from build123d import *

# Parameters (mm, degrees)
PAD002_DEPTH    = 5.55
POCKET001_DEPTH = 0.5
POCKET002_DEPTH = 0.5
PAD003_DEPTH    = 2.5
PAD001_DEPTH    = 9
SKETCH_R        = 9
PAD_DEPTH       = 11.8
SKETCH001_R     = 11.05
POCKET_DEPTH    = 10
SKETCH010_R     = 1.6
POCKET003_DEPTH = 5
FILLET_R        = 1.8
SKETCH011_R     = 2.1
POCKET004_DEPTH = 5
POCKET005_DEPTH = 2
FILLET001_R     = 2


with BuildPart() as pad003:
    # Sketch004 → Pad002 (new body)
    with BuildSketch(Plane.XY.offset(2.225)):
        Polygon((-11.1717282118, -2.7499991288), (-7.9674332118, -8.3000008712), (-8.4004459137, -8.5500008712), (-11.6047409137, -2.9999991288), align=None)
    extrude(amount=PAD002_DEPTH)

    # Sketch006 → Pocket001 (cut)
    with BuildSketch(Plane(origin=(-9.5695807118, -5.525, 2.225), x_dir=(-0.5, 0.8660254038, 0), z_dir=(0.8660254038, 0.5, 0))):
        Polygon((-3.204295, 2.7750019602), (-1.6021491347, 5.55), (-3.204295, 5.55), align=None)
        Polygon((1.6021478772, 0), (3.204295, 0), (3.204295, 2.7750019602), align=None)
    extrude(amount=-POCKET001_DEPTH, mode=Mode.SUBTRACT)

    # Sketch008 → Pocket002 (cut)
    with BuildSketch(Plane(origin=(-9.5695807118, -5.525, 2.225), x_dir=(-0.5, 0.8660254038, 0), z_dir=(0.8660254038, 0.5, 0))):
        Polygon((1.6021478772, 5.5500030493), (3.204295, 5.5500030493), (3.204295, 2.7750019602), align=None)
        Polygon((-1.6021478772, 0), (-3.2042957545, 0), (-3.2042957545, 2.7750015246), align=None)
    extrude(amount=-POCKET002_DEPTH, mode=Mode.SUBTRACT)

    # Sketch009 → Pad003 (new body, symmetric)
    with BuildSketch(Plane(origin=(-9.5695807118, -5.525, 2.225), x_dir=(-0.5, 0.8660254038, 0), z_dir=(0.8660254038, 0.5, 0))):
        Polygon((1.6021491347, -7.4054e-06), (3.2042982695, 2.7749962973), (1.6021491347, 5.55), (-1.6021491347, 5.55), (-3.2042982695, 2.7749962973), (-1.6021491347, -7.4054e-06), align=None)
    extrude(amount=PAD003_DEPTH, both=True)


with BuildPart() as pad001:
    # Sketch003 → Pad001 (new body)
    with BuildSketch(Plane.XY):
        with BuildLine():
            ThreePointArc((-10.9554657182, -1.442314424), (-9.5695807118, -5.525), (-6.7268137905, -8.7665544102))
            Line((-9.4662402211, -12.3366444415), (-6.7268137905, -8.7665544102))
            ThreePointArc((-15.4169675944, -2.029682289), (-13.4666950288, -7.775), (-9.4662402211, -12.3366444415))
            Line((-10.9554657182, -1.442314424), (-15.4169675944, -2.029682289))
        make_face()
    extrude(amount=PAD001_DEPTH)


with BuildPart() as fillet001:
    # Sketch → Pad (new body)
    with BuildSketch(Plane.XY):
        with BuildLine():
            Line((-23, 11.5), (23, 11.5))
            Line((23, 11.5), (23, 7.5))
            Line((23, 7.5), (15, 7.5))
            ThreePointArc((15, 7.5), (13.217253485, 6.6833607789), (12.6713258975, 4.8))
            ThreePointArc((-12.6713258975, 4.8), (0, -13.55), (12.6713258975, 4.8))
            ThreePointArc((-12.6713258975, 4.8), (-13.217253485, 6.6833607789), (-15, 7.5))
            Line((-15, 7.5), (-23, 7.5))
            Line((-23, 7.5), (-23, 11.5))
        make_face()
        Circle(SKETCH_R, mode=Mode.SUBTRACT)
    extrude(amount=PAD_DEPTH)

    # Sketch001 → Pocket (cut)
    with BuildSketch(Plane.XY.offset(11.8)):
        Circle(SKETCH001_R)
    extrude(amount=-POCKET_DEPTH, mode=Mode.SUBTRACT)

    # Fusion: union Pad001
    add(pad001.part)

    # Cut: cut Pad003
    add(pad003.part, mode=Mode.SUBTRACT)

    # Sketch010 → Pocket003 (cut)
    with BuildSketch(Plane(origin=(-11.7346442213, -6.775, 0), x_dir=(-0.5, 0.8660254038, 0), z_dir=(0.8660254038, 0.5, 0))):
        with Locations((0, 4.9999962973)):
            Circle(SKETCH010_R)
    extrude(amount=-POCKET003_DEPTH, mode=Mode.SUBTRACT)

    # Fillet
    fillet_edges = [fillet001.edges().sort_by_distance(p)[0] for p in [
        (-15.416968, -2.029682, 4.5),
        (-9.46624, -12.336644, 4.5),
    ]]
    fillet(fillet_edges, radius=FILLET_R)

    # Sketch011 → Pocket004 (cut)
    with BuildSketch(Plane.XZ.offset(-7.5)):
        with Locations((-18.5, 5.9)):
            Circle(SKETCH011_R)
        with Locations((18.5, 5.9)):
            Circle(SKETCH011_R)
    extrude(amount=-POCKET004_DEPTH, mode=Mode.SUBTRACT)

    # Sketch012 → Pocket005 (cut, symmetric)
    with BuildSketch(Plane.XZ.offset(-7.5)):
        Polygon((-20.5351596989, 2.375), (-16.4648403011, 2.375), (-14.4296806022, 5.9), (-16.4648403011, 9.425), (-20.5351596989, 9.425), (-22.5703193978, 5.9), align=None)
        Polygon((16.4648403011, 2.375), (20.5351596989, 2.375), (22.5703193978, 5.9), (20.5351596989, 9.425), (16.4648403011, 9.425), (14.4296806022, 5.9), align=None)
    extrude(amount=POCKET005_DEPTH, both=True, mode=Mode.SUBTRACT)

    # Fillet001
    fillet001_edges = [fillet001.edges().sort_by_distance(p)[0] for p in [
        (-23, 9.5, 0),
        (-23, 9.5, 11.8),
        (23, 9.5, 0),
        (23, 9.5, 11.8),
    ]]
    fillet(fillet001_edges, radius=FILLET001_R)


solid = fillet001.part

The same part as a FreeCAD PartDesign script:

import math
import FreeCAD as App
import Part
import Sketcher

V = App.Vector
Q = App.Units.Quantity


def edges_at(feature, points):
    """Names of the edges that pass closest to the given points."""
    edges = feature.Shape.Edges
    near = lambda p: min(range(len(edges)), key=lambda i: edges[i].distToShape(Part.Vertex(*p))[0])
    return sorted({f"Edge{near(p) + 1}" for p in points})

doc = App.newDocument("Part")
body = doc.addObject("PartDesign::Body", "Body")

sketch1 = body.newObject("Sketcher::SketchObject", "Sketch")
sketch1.AttachmentSupport = (doc.getObject("XY_Plane"), [""])
sketch1.MapMode = "FlatFace"
sketch1.AttachmentOffset = App.Placement(V(0, 0, 2.225), App.Rotation())
sketch1.addGeometry([
    Part.LineSegment(V(-8, -8.3, 0), V(-11.2, -2.7, 0)),
    Part.LineSegment(V(-11.2, -2.7, 0), V(-11.6, -3, 0)),
    Part.LineSegment(V(-11.6, -3, 0), V(-8.4, -8.6, 0)),
    Part.LineSegment(V(-8.4, -8.6, 0), V(-8, -8.3, 0)),
], False)
sketch1.addConstraint([
    Sketcher.Constraint("Coincident", 0, 2, 1, 1),
    Sketcher.Constraint("Coincident", 1, 2, 2, 1),
    Sketcher.Constraint("Coincident", 2, 2, 3, 1),
    Sketcher.Constraint("Coincident", 3, 2, 0, 1),
    Sketcher.Constraint("Perpendicular", 0, 1),
    Sketcher.Constraint("Perpendicular", 1, 2),
    Sketcher.Constraint("Perpendicular", 2, 3),
    Sketcher.Constraint("Angle", 0, Q("120 deg")),
    Sketcher.Constraint("DistanceY", 1, 2, -1, 1, 2.999999),
    Sketcher.Constraint("Distance", 1, 0.5),
    Sketcher.Constraint("DistanceY", 3, 2, -1, 1, 8.300001),
    Sketcher.Constraint("DistanceX", 0, 2, -1, 1, 11.171728),
])
pad1 = body.newObject("PartDesign::Pad", "Pad")
pad1.Profile = sketch1
pad1.Length = 5.55

sketch2 = body.newObject("Sketcher::SketchObject", "Sketch001")
sketch2.Placement = App.Placement(V(-9.569581, -5.525, 2.225), App.Rotation(V(-0.5, 0.866025404, 0), V(0, 0, 1), V(0.866025404, 0.5, 0), "ZXY"))
sketch2.addGeometry([
    Part.LineSegment(V(-3.2, 2.8, 0), V(-1.6, 5.6, 0)),
    Part.LineSegment(V(-1.6, 5.6, 0), V(-3.2, 5.6, 0)),
    Part.LineSegment(V(-3.2, 5.6, 0), V(-3.2, 2.8, 0)),
    Part.LineSegment(V(1.6, 0, 0), V(3.2, 0, 0)),
    Part.LineSegment(V(3.2, 0, 0), V(3.2, 2.8, 0)),
    Part.LineSegment(V(3.2, 2.8, 0), V(1.6, 0, 0)),
], False)
sketch2.addConstraint([
    Sketcher.Constraint("Coincident", 0, 2, 1, 1),
    Sketcher.Constraint("Coincident", 1, 2, 2, 1),
    Sketcher.Constraint("Coincident", 2, 2, 0, 1),
    Sketcher.Constraint("Coincident", 3, 2, 4, 1),
    Sketcher.Constraint("Coincident", 4, 2, 5, 1),
    Sketcher.Constraint("Coincident", 5, 2, 3, 1),
    Sketcher.Constraint("Horizontal", 1),
    Sketcher.Constraint("Vertical", 2),
    Sketcher.Constraint("Horizontal", 3),
    Sketcher.Constraint("Vertical", 4),
    Sketcher.Constraint("Symmetric", 2, 2, 4, 2, -2),
    Sketcher.Constraint("PointOnObject", 3, 2, -1),
    Sketcher.Constraint("Parallel", 0, 5),
    Sketcher.Constraint("Equal", 1, 3),
    Sketcher.Constraint("Angle", 0, Q("60 deg")),
    Sketcher.Constraint("DistanceY", 2, 2, 2, 1, 2.774998),
    Sketcher.Constraint("DistanceX", 0, 2, -1, 1, 1.602149),
])
pocket1 = body.newObject("PartDesign::Pocket", "Pocket")
pocket1.Profile = sketch2
pocket1.Length = 0.5

sketch3 = body.newObject("Sketcher::SketchObject", "Sketch002")
sketch3.Placement = App.Placement(V(-9.569581, -5.525, 2.225), App.Rotation(V(-0.5, 0.866025404, 0), V(0, 0, 1), V(0.866025404, 0.5, 0), "ZXY"))
sketch3.addGeometry([
    Part.LineSegment(V(3.2, 5.6, 0), V(1.6, 5.6, 0)),
    Part.LineSegment(V(1.6, 5.6, 0), V(3.2, 2.8, 0)),
    Part.LineSegment(V(3.2, 2.8, 0), V(3.2, 5.6, 0)),
    Part.LineSegment(V(-3.2, 0, 0), V(-1.6, 0, 0)),
    Part.LineSegment(V(-1.6, 0, 0), V(-3.2, 2.8, 0)),
    Part.LineSegment(V(-3.2, 2.8, 0), V(-3.2, 0, 0)),
], False)
sketch3.addConstraint([
    Sketcher.Constraint("Coincident", 0, 2, 1, 1),
    Sketcher.Constraint("Coincident", 1, 2, 2, 1),
    Sketcher.Constraint("Coincident", 2, 2, 0, 1),
    Sketcher.Constraint("Coincident", 3, 2, 4, 1),
    Sketcher.Constraint("Coincident", 4, 2, 5, 1),
    Sketcher.Constraint("Coincident", 5, 2, 3, 1),
    Sketcher.Constraint("Horizontal", 0),
    Sketcher.Constraint("Vertical", 2),
    Sketcher.Constraint("Horizontal", 3),
    Sketcher.Constraint("Vertical", 5),
    Sketcher.Constraint("Symmetric", 1, 2, 4, 2, -2),
    Sketcher.Constraint("PointOnObject", 3, 2, -1),
    Sketcher.Constraint("Parallel", 1, 4),
    Sketcher.Constraint("Equal", 0, 3),
    Sketcher.Constraint("Angle", 1, Q("-60.000008 deg")),
    Sketcher.Constraint("DistanceY", 2, 1, 2, 2, 2.775001),
    Sketcher.Constraint("DistanceX", 4, 2, 1, 2, 6.408591),
])
pocket2 = body.newObject("PartDesign::Pocket", "Pocket001")
pocket2.Profile = sketch3
pocket2.Length = 0.5

sketch4 = body.newObject("Sketcher::SketchObject", "Sketch003")
sketch4.Placement = App.Placement(V(-9.569581, -5.525, 2.225), App.Rotation(V(-0.5, 0.866025404, 0), V(0, 0, 1), V(0.866025404, 0.5, 0), "ZXY"))
sketch4.addGeometry([
    Part.LineSegment(V(1.6, 0, 0), V(3.2, 2.8, 0)),
    Part.LineSegment(V(3.2, 2.8, 0), V(1.6, 5.6, 0)),
    Part.LineSegment(V(1.6, 5.6, 0), V(-1.6, 5.6, 0)),
    Part.LineSegment(V(-1.6, 5.6, 0), V(-3.2, 2.8, 0)),
    Part.LineSegment(V(-3.2, 2.8, 0), V(-1.6, 0, 0)),
    Part.LineSegment(V(-1.6, 0, 0), V(1.6, 0, 0)),
], False)
sketch4.addConstraint([
    Sketcher.Constraint("Coincident", 0, 2, 1, 1),
    Sketcher.Constraint("Coincident", 1, 2, 2, 1),
    Sketcher.Constraint("Coincident", 2, 2, 3, 1),
    Sketcher.Constraint("Coincident", 3, 2, 4, 1),
    Sketcher.Constraint("Coincident", 4, 2, 5, 1),
    Sketcher.Constraint("Coincident", 5, 2, 0, 1),
    Sketcher.Constraint("Horizontal", 2),
    Sketcher.Constraint("Horizontal", 5),
    Sketcher.Constraint("Symmetric", 0, 2, 3, 2, -2),
    Sketcher.Constraint("Parallel", 0, 3),
    Sketcher.Constraint("Parallel", 1, 4),
    Sketcher.Constraint("Vertical", 2, 2, 4, 2),
    Sketcher.Constraint("Vertical", 1, 2, 5, 2),
    Sketcher.Constraint("Angle", 0, Q("60 deg")),
    Sketcher.Constraint("DistanceY", -1, 1, 1, 2, 5.55),
    Sketcher.Constraint("DistanceX", 2, 2, 2, 1, 3.204298),
    Sketcher.Constraint("Distance", 0, 3.204298),
])
pad2 = body.newObject("PartDesign::Pad", "Pad001")
pad2.Profile = sketch4
pad2.Length = 5
pad2.Midplane = True
body2 = doc.addObject("PartDesign::Body", "Body001")

sketch5 = body2.newObject("Sketcher::SketchObject", "Sketch004")
sketch5.AttachmentSupport = (doc.getObject("XY_Plane001"), [""])
sketch5.MapMode = "FlatFace"
sketch5.addGeometry([
    Part.ArcOfCircle(Part.Circle(V(0, 0, 0), V(0, 0, 1), 11.1), math.radians(-173), math.radians(-128)),
    Part.LineSegment(V(-11, -1.4, 0), V(-15.4, -2, 0)),
    Part.ArcOfCircle(Part.Circle(V(0, 0, 0), V(0, 0, 1), 15.6), math.radians(-173), math.radians(-128)),
    Part.LineSegment(V(-9.5, -12.3, 0), V(-6.7, -8.8, 0)),
], False)
sketch5.addConstraint([
    Sketcher.Constraint("Coincident", 0, 1, 1, 1),
    Sketcher.Constraint("Coincident", 1, 2, 2, 1),
    Sketcher.Constraint("Coincident", 2, 2, 3, 1),
    Sketcher.Constraint("Coincident", 3, 2, 0, 2),
    Sketcher.Constraint("Coincident", 0, 3, -1, 1),
    Sketcher.Constraint("Coincident", 2, 3, -1, 1),
    Sketcher.Constraint("Radius", 0, 11.05),
    Sketcher.Constraint("Radius", 2, 15.55),
    Sketcher.Constraint("Angle", 1, Q("-172.5 deg")),
    Sketcher.Constraint("Angle", 3, Q("52.5 deg")),
    Sketcher.Constraint("DistanceX", 2, 2, -1, 1, 9.46624),
    Sketcher.Constraint("DistanceY", 2, 2, 0, 1, 10.89433),
])
pad3 = body2.newObject("PartDesign::Pad", "Pad002")
pad3.Profile = sketch5
pad3.Length = 9
body3 = doc.addObject("PartDesign::Body", "Body002")

sketch6 = body3.newObject("Sketcher::SketchObject", "Sketch005")
sketch6.AttachmentSupport = (doc.getObject("XY_Plane002"), [""])
sketch6.MapMode = "FlatFace"
sketch6.addGeometry([
    Part.LineSegment(V(23, 11.5, 0), V(-23, 11.5, 0)),
    Part.LineSegment(V(-23, 11.5, 0), V(-23, 7.5, 0)),
    Part.LineSegment(V(-23, 7.5, 0), V(-15, 7.5, 0)),
    Part.ArcOfCircle(Part.Circle(V(-15, 5.1, 0), V(0, 0, 1), 2.4), math.radians(-8), math.radians(90)),
    Part.ArcOfCircle(Part.Circle(V(0, 0, 0), V(0, 0, 1), 13.6), math.radians(159), math.radians(381)),
    Part.ArcOfCircle(Part.Circle(V(15, 5.1, 0), V(0, 0, 1), 2.4), math.radians(90), math.radians(188)),
    Part.LineSegment(V(15, 7.5, 0), V(23, 7.5, 0)),
    Part.LineSegment(V(23, 7.5, 0), V(23, 11.5, 0)),
    Part.Circle(V(0, 0, 0), V(0, 0, 1), 9),
], False)
sketch6.addConstraint([
    Sketcher.Constraint("Coincident", 0, 2, 1, 1),
    Sketcher.Constraint("Coincident", 1, 2, 2, 1),
    Sketcher.Constraint("Tangent", 2, 2, 3, 2),
    Sketcher.Constraint("Coincident", 3, 1, 4, 1),
    Sketcher.Constraint("Coincident", 4, 2, 5, 2),
    Sketcher.Constraint("Tangent", 5, 1, 6, 1),
    Sketcher.Constraint("Coincident", 6, 2, 7, 1),
    Sketcher.Constraint("Coincident", 7, 2, 0, 1),
    Sketcher.Constraint("Horizontal", 0),
    Sketcher.Constraint("Vertical", 1),
    Sketcher.Constraint("Horizontal", 2),
    Sketcher.Constraint("Horizontal", 6),
    Sketcher.Constraint("Vertical", 7),
    Sketcher.Constraint("Coincident", 4, 3, -1, 1),
    Sketcher.Constraint("Coincident", 8, 3, -1, 1),
    Sketcher.Constraint("Equal", 3, 5),
    Sketcher.Constraint("Symmetric", 3, 3, 5, 3, -2),
    Sketcher.Constraint("Equal", 2, 6),
    Sketcher.Constraint("Diameter", 8, 18.0),
    Sketcher.Constraint("DistanceX", 0, 2, 0, 1, 46.0),
    Sketcher.Constraint("DistanceX", 2, 1, 2, 2, 8.0),
    Sketcher.Constraint("DistanceY", 1, 2, 1, 1, 4.0),
    Sketcher.Constraint("Radius", 4, 13.55),
    Sketcher.Constraint("DistanceY", -1, 1, 0, 2, 11.5),
    Sketcher.Constraint("DistanceY", -1, 1, 3, 1, 4.8),
])
pad4 = body3.newObject("PartDesign::Pad", "Pad003")
pad4.Profile = sketch6
pad4.Length = 11.8

sketch7 = body3.newObject("Sketcher::SketchObject", "Sketch006")
sketch7.AttachmentSupport = (doc.getObject("XY_Plane002"), [""])
sketch7.MapMode = "FlatFace"
sketch7.AttachmentOffset = App.Placement(V(0, 0, 11.8), App.Rotation())
sketch7.addGeometry(Part.Circle(V(0, 0, 0), V(0, 0, 1), 11), False)
sketch7.addConstraint([
    Sketcher.Constraint("Coincident", 0, 3, -1, 1),
    Sketcher.Constraint("Diameter", 0, 22.1),
])
pocket3 = body3.newObject("PartDesign::Pocket", "Pocket002")
pocket3.Profile = sketch7
pocket3.Length = 10
doc.recompute()

boolean = body3.newObject("PartDesign::Boolean", "Boolean")
boolean.Type = "Fuse"
boolean.addObjects([body2])
doc.recompute()

boolean2 = body3.newObject("PartDesign::Boolean", "Boolean001")
boolean2.Type = "Cut"
boolean2.addObjects([body])

sketch8 = body3.newObject("Sketcher::SketchObject", "Sketch007")
sketch8.Placement = App.Placement(V(-11.734644, -6.775, 0), App.Rotation(V(-0.5, 0.866025404, 0), V(0, 0, 1), V(0.866025404, 0.5, 0), "ZXY"))
sketch8.addGeometry(Part.Circle(V(0, 5, 0), V(0, 0, 1), 1.6), False)
sketch8.addConstraint([
    Sketcher.Constraint("PointOnObject", 0, 3, -2),
    Sketcher.Constraint("Diameter", 0, 3.2),
    Sketcher.Constraint("DistanceY", -1, 1, 0, 3, 4.999996),
])
pocket4 = body3.newObject("PartDesign::Pocket", "Pocket003")
pocket4.Profile = sketch8
pocket4.Length = 5
doc.recompute()

fillet = body3.newObject("PartDesign::Fillet", "Fillet")
fillet.Base = (pocket4, edges_at(pocket4, [(-15.417, -2.03, 4.5), (-9.466, -12.337, 4.5)]))
fillet.Radius = 1.8

sketch9 = body3.newObject("Sketcher::SketchObject", "Sketch008")
sketch9.AttachmentSupport = (doc.getObject("XZ_Plane002"), [""])
sketch9.MapMode = "FlatFace"
sketch9.AttachmentOffset = App.Placement(V(0, 0, -7.5), App.Rotation())
sketch9.addGeometry([
    Part.Circle(V(-18.5, 5.9, 0), V(0, 0, 1), 2.1),
    Part.Circle(V(18.5, 5.9, 0), V(0, 0, 1), 2.1),
], False)
sketch9.addConstraint([
    Sketcher.Constraint("Equal", 0, 1),
    Sketcher.Constraint("Symmetric", 0, 3, 1, 3, -2),
    Sketcher.Constraint("Diameter", 0, 4.2),
    Sketcher.Constraint("DistanceX", 0, 3, 1, 3, 37.0),
    Sketcher.Constraint("DistanceY", -1, 1, 0, 3, 5.9),
])
pocket5 = body3.newObject("PartDesign::Pocket", "Pocket004")
pocket5.Profile = sketch9
pocket5.Length = 5

sketch10 = body3.newObject("Sketcher::SketchObject", "Sketch009")
sketch10.AttachmentSupport = (doc.getObject("XZ_Plane002"), [""])
sketch10.MapMode = "FlatFace"
sketch10.AttachmentOffset = App.Placement(V(0, 0, -7.5), App.Rotation())
sketch10.addGeometry([
    Part.LineSegment(V(-20.5, 2.4, 0), V(-16.5, 2.4, 0)),
    Part.LineSegment(V(-16.5, 2.4, 0), V(-14.4, 5.9, 0)),
    Part.LineSegment(V(-14.4, 5.9, 0), V(-16.5, 9.4, 0)),
    Part.LineSegment(V(-16.5, 9.4, 0), V(-20.5, 9.4, 0)),
    Part.LineSegment(V(-20.5, 9.4, 0), V(-22.6, 5.9, 0)),
    Part.LineSegment(V(-22.6, 5.9, 0), V(-20.5, 2.4, 0)),
    Part.LineSegment(V(16.5, 2.4, 0), V(20.5, 2.4, 0)),
    Part.LineSegment(V(20.5, 2.4, 0), V(22.6, 5.9, 0)),
    Part.LineSegment(V(22.6, 5.9, 0), V(20.5, 9.4, 0)),
    Part.LineSegment(V(20.5, 9.4, 0), V(16.5, 9.4, 0)),
    Part.LineSegment(V(16.5, 9.4, 0), V(14.4, 5.9, 0)),
    Part.LineSegment(V(14.4, 5.9, 0), V(16.5, 2.4, 0)),
], False)
sketch10.addConstraint([
    Sketcher.Constraint("Coincident", 0, 2, 1, 1),
    Sketcher.Constraint("Coincident", 1, 2, 2, 1),
    Sketcher.Constraint("Coincident", 2, 2, 3, 1),
    Sketcher.Constraint("Coincident", 3, 2, 4, 1),
    Sketcher.Constraint("Coincident", 4, 2, 5, 1),
    Sketcher.Constraint("Coincident", 5, 2, 0, 1),
    Sketcher.Constraint("Coincident", 6, 2, 7, 1),
    Sketcher.Constraint("Coincident", 7, 2, 8, 1),
    Sketcher.Constraint("Coincident", 8, 2, 9, 1),
    Sketcher.Constraint("Coincident", 9, 2, 10, 1),
    Sketcher.Constraint("Coincident", 10, 2, 11, 1),
    Sketcher.Constraint("Coincident", 11, 2, 6, 1),
    Sketcher.Constraint("Horizontal", 0),
    Sketcher.Constraint("Horizontal", 3),
    Sketcher.Constraint("Horizontal", 6),
    Sketcher.Constraint("Horizontal", 9),
    Sketcher.Constraint("Symmetric", 5, 2, 6, 2, -2),
    Sketcher.Constraint("Symmetric", 4, 2, 7, 2, -2),
    Sketcher.Constraint("Symmetric", 3, 2, 8, 2, -2),
    Sketcher.Constraint("Symmetric", 1, 2, 10, 2, -2),
    Sketcher.Constraint("Parallel", 1, 4),
    Sketcher.Constraint("Parallel", 2, 5),
    Sketcher.Constraint("Parallel", 4, 7),
    Sketcher.Constraint("Parallel", 7, 10),
    Sketcher.Constraint("Parallel", 8, 11),
    Sketcher.Constraint("Horizontal", 1, 2, 4, 2),
    Sketcher.Constraint("Vertical", 0, 2, 2, 2),
    Sketcher.Constraint("Angle", 1, Q("60 deg")),
    Sketcher.Constraint("DistanceX", 0, 2, 6, 2, 37.0),
    Sketcher.Constraint("DistanceY", -1, 1, 1, 2, 5.9),
    Sketcher.Constraint("DistanceY", 0, 2, 2, 2, 7.05),
    Sketcher.Constraint("DistanceX", 0, 1, 0, 2, 4.070319),
])
pocket6 = body3.newObject("PartDesign::Pocket", "Pocket005")
pocket6.Profile = sketch10
pocket6.Length = 4
pocket6.Midplane = True
doc.recompute()

fillet2 = body3.newObject("PartDesign::Fillet", "Fillet001")
fillet2.Base = (pocket6, edges_at(pocket6, [
    (-23, 9.5, 0),
    (-23, 9.5, 11.8),
    (23, 9.5, 0),
    (23, 9.5, 11.8),
]))
fillet2.Radius = 2

doc.recompute()
